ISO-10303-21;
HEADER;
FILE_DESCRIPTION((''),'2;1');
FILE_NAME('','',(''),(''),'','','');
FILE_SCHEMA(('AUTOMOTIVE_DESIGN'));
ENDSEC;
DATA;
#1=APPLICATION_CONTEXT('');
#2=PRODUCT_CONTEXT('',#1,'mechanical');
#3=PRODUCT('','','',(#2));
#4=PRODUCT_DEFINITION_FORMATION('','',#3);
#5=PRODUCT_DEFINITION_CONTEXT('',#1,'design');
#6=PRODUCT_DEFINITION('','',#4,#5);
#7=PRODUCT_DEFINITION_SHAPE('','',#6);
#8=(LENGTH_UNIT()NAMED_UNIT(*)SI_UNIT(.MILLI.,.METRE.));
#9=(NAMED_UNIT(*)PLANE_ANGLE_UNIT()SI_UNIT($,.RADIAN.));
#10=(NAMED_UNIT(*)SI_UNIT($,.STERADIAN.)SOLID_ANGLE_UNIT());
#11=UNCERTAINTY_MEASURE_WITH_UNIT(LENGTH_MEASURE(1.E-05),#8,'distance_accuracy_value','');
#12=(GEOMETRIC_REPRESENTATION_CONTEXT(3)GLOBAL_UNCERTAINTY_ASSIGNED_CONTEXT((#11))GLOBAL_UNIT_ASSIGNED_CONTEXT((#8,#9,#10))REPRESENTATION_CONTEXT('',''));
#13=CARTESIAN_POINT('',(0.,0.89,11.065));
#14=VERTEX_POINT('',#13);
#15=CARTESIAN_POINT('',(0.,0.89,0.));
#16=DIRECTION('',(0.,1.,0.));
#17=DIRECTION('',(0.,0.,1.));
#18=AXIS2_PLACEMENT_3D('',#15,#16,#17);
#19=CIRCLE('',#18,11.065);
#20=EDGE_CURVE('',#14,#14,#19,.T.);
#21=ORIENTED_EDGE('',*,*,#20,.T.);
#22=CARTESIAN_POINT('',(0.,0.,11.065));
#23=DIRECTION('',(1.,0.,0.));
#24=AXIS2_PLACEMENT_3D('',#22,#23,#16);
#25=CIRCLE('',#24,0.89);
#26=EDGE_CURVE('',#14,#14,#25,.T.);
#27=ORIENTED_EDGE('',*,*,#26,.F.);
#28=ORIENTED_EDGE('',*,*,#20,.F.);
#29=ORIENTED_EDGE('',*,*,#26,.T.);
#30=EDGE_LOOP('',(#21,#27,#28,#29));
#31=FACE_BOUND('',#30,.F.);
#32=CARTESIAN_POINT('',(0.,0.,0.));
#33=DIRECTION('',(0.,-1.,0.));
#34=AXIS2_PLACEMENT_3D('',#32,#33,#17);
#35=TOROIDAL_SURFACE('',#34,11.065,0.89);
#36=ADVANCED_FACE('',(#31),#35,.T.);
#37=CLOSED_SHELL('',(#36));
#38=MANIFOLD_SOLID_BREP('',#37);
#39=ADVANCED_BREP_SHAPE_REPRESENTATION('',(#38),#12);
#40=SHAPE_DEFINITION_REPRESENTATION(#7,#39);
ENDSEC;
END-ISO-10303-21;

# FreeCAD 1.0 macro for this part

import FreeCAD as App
import Part
import Sketcher
from FreeCAD import Vector

doc = App.newDocument("Part")
params = doc.addObject("Spreadsheet::Sheet", "Params")
for row, (alias, value) in enumerate([
    ("sketch1_diameter", "1.78 mm"),
    ("revolution_angle", "360 deg"),
], start=1):
    params.set(f"A{row}", alias)
    params.set(f"B{row}", "=" + value)
    params.setAlias(f"B{row}", alias)

body = doc.addObject("PartDesign::Body", "Body")

sketch1 = body.newObject("Sketcher::SketchObject", "Sketch")
sketch1.AttachmentSupport = (doc.getObject("YZ_Plane"), [""])
sketch1.MapMode = "FlatFace"
sketch1.addGeometry(Part.Circle(Vector(0, 11.065, 0), Vector(0, 0, 1), 0.89), False)
sketch1.addConstraint([
    Sketcher.Constraint("PointOnObject", 0, 3, -2),
    Sketcher.Constraint("Diameter", 0, 1.78),
    Sketcher.Constraint("DistanceY", -1, 1, 0, 3, 11.065),
])
sketch1.setExpression("Constraints[1]", "Params.sketch1_diameter")
revolution = body.newObject("PartDesign::Revolution", "Revolution")
revolution.Profile = sketch1
revolution.ReferenceAxis = (sketch1, ["H_Axis"])
revolution.setExpression("Angle", "Params.revolution_angle")

doc.recompute()
